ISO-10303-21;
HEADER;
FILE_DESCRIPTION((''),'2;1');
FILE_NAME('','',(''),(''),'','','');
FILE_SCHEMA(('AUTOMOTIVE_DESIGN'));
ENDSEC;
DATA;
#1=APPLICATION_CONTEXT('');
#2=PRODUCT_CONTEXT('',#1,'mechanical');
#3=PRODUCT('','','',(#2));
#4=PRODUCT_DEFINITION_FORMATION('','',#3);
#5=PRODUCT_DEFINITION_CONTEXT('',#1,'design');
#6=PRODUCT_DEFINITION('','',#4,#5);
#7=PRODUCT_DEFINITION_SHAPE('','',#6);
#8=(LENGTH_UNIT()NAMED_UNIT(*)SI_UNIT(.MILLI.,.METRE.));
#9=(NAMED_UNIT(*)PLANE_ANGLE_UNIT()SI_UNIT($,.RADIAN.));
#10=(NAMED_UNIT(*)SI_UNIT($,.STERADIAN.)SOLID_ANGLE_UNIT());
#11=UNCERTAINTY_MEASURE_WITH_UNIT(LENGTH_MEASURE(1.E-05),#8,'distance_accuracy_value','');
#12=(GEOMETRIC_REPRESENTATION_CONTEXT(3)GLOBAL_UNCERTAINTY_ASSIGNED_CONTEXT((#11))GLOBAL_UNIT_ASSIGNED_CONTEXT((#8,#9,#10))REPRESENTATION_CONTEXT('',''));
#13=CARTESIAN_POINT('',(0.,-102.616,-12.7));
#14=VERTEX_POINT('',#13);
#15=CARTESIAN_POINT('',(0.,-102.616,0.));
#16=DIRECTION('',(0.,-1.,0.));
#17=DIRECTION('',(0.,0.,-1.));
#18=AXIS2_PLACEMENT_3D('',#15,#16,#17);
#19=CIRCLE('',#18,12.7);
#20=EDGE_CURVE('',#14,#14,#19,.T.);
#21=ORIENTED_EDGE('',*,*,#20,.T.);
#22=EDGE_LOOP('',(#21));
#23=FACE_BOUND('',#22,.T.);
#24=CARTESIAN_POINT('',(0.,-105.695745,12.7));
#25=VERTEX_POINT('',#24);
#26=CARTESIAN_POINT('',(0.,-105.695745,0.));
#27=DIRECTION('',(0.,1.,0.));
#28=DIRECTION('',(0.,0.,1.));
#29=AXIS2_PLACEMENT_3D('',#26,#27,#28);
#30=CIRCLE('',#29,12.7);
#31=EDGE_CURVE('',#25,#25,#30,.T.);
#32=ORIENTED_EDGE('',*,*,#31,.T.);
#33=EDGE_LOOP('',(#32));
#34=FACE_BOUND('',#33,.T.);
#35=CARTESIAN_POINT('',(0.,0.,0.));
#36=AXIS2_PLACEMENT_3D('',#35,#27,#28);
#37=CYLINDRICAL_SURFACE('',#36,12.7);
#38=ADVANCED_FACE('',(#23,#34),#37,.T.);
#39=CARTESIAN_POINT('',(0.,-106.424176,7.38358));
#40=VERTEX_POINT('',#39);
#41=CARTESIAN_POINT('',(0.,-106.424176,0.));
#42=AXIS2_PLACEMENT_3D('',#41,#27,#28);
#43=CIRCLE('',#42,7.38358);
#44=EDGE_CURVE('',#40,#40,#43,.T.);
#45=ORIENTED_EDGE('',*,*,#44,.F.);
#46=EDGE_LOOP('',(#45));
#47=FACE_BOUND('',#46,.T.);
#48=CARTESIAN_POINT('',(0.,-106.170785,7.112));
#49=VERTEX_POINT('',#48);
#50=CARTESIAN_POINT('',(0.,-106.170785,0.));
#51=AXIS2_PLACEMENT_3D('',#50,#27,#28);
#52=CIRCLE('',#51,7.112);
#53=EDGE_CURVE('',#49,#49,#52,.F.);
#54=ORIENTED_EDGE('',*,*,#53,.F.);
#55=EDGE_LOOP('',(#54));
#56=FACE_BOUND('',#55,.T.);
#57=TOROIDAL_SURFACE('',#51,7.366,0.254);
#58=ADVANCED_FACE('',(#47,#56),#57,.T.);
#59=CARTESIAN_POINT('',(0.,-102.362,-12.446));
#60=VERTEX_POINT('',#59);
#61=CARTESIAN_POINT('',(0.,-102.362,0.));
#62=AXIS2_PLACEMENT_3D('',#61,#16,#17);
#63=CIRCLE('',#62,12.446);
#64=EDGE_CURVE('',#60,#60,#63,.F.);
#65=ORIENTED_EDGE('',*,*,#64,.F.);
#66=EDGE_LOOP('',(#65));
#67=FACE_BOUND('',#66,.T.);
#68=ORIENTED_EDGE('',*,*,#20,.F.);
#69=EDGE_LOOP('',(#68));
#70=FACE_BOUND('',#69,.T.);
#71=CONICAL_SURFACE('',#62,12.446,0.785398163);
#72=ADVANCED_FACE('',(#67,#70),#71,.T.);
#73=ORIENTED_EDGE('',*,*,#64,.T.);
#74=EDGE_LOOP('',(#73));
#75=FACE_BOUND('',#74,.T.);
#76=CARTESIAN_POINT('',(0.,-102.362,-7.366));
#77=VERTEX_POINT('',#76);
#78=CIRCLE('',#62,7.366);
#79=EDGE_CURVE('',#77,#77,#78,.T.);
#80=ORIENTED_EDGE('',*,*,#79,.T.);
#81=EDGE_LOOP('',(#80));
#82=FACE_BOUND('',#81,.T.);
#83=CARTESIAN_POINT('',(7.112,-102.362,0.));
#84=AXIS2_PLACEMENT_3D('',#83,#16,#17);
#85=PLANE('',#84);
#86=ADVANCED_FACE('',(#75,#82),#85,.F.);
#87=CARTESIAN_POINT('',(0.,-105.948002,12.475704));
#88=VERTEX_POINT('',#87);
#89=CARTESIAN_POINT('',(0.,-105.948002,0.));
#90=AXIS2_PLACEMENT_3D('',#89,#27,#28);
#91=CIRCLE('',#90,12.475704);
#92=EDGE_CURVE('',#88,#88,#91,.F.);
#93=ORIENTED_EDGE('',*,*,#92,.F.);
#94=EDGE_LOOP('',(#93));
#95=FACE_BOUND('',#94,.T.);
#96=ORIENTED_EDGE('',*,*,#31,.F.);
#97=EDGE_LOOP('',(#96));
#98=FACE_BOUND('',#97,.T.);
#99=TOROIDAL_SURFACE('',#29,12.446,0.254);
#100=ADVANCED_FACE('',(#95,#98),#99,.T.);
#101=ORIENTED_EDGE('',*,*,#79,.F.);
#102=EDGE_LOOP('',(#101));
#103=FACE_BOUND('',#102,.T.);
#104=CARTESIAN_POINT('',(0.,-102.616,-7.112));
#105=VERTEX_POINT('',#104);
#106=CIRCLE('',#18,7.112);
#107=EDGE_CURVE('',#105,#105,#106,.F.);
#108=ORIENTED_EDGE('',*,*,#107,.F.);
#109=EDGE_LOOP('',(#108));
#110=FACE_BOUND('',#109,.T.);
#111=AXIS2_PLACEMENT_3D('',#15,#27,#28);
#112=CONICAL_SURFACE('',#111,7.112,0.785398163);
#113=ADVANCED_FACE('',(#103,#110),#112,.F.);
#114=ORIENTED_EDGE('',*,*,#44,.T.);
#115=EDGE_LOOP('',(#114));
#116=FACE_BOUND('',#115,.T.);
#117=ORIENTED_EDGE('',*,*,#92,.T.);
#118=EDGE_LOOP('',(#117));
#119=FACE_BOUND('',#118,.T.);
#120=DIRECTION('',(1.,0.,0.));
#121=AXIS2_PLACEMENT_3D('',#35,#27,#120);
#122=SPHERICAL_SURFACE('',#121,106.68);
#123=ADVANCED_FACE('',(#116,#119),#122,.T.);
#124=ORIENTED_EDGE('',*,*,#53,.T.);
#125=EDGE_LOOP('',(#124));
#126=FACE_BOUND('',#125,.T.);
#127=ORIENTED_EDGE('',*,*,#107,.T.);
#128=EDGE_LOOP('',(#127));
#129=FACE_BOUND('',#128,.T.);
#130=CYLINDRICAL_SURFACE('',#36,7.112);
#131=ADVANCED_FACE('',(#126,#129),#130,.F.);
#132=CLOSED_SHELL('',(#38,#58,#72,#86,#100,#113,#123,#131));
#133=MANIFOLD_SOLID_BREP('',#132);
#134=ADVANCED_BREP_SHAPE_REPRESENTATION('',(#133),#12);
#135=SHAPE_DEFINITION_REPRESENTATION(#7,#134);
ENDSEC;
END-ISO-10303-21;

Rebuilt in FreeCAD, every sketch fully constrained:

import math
import FreeCAD as App
import Part
import Sketcher
Q = App.Units.Quantity


def edges_at(feature, points):
    """Names of the edges that pass closest to the given points."""
    edges = feature.Shape.Edges
    near = lambda p: min(range(len(edges)), key=lambda i: edges[i].distToShape(Part.Vertex(*p))[0])
    return sorted({f"Edge{near(p) + 1}" for p in points})

doc = App.newDocument("Part")
body = doc.addObject("PartDesign::Body", "Body")

sketch1 = doc.addObject("Sketcher::SketchObject", "Sketch")
body.addObject(sketch1)
sketch1.AttachmentSupport = (doc.XY_Plane, [""])
sketch1.MapMode = "FlatFace"
sketch1.addGeometry([
    Part.LineSegment(App.Vector(12.7, -105.9, 0), App.Vector(12.7, -102.4, 0)),
    Part.LineSegment(App.Vector(12.7, -102.4, 0), App.Vector(7.1, -102.4, 0)),
    Part.LineSegment(App.Vector(7.1, -102.4, 0), App.Vector(7.1, -106.4, 0)),
    Part.ArcOfCircle(Part.Circle(App.Vector(0, 0, 0), App.Vector(0, 0, 1), 106.7), math.radians(-86.18), math.radians(-83.16)),
], False)
sketch1.addConstraint([
    Sketcher.Constraint("Coincident", 0, 2, 1, 1),
    Sketcher.Constraint("Coincident", 1, 2, 2, 1),
    Sketcher.Constraint("Coincident", 2, 2, 3, 1),
    Sketcher.Constraint("Coincident", 3, 2, 0, 1),
    Sketcher.Constraint("Vertical", 0),
    Sketcher.Constraint("Horizontal", 1),
    Sketcher.Constraint("Vertical", 2),
    Sketcher.Constraint("Coincident", 3, 3, -1, 1),
    Sketcher.Constraint("Radius", 3, Q("4.2000001 in")),
    Sketcher.Constraint("DistanceX", 1, 2, 1, 1, Q("0.22 in")),
    Sketcher.Constraint("DistanceX", -1, 1, 0, 2, Q("0.5 in")),
    Sketcher.Constraint("DistanceY", 0, 2, -1, 1, Q("4.03 in")),
])
revolution = doc.addObject("PartDesign::Revolution", "Revolution")
body.addObject(revolution)
revolution.Profile = sketch1
revolution.ReferenceAxis = (sketch1, ["V_Axis"])
revolution.Angle = 360
doc.recompute()

chamfer = doc.addObject("PartDesign::Chamfer", "Chamfer")
body.addObject(chamfer)
chamfer.Base = (revolution, edges_at(revolution, [(0, -102.362, -12.7), (0, -102.362, -7.112)]))
chamfer.Size = Q("0.01 in")
doc.recompute()

fillet = doc.addObject("PartDesign::Fillet", "Fillet")
body.addObject(fillet)
fillet.Base = (chamfer, edges_at(chamfer, [(0, -105.921, -12.7), (0, -106.443, -7.112)]))
fillet.Radius = Q("0.01 in")

doc.recompute()
